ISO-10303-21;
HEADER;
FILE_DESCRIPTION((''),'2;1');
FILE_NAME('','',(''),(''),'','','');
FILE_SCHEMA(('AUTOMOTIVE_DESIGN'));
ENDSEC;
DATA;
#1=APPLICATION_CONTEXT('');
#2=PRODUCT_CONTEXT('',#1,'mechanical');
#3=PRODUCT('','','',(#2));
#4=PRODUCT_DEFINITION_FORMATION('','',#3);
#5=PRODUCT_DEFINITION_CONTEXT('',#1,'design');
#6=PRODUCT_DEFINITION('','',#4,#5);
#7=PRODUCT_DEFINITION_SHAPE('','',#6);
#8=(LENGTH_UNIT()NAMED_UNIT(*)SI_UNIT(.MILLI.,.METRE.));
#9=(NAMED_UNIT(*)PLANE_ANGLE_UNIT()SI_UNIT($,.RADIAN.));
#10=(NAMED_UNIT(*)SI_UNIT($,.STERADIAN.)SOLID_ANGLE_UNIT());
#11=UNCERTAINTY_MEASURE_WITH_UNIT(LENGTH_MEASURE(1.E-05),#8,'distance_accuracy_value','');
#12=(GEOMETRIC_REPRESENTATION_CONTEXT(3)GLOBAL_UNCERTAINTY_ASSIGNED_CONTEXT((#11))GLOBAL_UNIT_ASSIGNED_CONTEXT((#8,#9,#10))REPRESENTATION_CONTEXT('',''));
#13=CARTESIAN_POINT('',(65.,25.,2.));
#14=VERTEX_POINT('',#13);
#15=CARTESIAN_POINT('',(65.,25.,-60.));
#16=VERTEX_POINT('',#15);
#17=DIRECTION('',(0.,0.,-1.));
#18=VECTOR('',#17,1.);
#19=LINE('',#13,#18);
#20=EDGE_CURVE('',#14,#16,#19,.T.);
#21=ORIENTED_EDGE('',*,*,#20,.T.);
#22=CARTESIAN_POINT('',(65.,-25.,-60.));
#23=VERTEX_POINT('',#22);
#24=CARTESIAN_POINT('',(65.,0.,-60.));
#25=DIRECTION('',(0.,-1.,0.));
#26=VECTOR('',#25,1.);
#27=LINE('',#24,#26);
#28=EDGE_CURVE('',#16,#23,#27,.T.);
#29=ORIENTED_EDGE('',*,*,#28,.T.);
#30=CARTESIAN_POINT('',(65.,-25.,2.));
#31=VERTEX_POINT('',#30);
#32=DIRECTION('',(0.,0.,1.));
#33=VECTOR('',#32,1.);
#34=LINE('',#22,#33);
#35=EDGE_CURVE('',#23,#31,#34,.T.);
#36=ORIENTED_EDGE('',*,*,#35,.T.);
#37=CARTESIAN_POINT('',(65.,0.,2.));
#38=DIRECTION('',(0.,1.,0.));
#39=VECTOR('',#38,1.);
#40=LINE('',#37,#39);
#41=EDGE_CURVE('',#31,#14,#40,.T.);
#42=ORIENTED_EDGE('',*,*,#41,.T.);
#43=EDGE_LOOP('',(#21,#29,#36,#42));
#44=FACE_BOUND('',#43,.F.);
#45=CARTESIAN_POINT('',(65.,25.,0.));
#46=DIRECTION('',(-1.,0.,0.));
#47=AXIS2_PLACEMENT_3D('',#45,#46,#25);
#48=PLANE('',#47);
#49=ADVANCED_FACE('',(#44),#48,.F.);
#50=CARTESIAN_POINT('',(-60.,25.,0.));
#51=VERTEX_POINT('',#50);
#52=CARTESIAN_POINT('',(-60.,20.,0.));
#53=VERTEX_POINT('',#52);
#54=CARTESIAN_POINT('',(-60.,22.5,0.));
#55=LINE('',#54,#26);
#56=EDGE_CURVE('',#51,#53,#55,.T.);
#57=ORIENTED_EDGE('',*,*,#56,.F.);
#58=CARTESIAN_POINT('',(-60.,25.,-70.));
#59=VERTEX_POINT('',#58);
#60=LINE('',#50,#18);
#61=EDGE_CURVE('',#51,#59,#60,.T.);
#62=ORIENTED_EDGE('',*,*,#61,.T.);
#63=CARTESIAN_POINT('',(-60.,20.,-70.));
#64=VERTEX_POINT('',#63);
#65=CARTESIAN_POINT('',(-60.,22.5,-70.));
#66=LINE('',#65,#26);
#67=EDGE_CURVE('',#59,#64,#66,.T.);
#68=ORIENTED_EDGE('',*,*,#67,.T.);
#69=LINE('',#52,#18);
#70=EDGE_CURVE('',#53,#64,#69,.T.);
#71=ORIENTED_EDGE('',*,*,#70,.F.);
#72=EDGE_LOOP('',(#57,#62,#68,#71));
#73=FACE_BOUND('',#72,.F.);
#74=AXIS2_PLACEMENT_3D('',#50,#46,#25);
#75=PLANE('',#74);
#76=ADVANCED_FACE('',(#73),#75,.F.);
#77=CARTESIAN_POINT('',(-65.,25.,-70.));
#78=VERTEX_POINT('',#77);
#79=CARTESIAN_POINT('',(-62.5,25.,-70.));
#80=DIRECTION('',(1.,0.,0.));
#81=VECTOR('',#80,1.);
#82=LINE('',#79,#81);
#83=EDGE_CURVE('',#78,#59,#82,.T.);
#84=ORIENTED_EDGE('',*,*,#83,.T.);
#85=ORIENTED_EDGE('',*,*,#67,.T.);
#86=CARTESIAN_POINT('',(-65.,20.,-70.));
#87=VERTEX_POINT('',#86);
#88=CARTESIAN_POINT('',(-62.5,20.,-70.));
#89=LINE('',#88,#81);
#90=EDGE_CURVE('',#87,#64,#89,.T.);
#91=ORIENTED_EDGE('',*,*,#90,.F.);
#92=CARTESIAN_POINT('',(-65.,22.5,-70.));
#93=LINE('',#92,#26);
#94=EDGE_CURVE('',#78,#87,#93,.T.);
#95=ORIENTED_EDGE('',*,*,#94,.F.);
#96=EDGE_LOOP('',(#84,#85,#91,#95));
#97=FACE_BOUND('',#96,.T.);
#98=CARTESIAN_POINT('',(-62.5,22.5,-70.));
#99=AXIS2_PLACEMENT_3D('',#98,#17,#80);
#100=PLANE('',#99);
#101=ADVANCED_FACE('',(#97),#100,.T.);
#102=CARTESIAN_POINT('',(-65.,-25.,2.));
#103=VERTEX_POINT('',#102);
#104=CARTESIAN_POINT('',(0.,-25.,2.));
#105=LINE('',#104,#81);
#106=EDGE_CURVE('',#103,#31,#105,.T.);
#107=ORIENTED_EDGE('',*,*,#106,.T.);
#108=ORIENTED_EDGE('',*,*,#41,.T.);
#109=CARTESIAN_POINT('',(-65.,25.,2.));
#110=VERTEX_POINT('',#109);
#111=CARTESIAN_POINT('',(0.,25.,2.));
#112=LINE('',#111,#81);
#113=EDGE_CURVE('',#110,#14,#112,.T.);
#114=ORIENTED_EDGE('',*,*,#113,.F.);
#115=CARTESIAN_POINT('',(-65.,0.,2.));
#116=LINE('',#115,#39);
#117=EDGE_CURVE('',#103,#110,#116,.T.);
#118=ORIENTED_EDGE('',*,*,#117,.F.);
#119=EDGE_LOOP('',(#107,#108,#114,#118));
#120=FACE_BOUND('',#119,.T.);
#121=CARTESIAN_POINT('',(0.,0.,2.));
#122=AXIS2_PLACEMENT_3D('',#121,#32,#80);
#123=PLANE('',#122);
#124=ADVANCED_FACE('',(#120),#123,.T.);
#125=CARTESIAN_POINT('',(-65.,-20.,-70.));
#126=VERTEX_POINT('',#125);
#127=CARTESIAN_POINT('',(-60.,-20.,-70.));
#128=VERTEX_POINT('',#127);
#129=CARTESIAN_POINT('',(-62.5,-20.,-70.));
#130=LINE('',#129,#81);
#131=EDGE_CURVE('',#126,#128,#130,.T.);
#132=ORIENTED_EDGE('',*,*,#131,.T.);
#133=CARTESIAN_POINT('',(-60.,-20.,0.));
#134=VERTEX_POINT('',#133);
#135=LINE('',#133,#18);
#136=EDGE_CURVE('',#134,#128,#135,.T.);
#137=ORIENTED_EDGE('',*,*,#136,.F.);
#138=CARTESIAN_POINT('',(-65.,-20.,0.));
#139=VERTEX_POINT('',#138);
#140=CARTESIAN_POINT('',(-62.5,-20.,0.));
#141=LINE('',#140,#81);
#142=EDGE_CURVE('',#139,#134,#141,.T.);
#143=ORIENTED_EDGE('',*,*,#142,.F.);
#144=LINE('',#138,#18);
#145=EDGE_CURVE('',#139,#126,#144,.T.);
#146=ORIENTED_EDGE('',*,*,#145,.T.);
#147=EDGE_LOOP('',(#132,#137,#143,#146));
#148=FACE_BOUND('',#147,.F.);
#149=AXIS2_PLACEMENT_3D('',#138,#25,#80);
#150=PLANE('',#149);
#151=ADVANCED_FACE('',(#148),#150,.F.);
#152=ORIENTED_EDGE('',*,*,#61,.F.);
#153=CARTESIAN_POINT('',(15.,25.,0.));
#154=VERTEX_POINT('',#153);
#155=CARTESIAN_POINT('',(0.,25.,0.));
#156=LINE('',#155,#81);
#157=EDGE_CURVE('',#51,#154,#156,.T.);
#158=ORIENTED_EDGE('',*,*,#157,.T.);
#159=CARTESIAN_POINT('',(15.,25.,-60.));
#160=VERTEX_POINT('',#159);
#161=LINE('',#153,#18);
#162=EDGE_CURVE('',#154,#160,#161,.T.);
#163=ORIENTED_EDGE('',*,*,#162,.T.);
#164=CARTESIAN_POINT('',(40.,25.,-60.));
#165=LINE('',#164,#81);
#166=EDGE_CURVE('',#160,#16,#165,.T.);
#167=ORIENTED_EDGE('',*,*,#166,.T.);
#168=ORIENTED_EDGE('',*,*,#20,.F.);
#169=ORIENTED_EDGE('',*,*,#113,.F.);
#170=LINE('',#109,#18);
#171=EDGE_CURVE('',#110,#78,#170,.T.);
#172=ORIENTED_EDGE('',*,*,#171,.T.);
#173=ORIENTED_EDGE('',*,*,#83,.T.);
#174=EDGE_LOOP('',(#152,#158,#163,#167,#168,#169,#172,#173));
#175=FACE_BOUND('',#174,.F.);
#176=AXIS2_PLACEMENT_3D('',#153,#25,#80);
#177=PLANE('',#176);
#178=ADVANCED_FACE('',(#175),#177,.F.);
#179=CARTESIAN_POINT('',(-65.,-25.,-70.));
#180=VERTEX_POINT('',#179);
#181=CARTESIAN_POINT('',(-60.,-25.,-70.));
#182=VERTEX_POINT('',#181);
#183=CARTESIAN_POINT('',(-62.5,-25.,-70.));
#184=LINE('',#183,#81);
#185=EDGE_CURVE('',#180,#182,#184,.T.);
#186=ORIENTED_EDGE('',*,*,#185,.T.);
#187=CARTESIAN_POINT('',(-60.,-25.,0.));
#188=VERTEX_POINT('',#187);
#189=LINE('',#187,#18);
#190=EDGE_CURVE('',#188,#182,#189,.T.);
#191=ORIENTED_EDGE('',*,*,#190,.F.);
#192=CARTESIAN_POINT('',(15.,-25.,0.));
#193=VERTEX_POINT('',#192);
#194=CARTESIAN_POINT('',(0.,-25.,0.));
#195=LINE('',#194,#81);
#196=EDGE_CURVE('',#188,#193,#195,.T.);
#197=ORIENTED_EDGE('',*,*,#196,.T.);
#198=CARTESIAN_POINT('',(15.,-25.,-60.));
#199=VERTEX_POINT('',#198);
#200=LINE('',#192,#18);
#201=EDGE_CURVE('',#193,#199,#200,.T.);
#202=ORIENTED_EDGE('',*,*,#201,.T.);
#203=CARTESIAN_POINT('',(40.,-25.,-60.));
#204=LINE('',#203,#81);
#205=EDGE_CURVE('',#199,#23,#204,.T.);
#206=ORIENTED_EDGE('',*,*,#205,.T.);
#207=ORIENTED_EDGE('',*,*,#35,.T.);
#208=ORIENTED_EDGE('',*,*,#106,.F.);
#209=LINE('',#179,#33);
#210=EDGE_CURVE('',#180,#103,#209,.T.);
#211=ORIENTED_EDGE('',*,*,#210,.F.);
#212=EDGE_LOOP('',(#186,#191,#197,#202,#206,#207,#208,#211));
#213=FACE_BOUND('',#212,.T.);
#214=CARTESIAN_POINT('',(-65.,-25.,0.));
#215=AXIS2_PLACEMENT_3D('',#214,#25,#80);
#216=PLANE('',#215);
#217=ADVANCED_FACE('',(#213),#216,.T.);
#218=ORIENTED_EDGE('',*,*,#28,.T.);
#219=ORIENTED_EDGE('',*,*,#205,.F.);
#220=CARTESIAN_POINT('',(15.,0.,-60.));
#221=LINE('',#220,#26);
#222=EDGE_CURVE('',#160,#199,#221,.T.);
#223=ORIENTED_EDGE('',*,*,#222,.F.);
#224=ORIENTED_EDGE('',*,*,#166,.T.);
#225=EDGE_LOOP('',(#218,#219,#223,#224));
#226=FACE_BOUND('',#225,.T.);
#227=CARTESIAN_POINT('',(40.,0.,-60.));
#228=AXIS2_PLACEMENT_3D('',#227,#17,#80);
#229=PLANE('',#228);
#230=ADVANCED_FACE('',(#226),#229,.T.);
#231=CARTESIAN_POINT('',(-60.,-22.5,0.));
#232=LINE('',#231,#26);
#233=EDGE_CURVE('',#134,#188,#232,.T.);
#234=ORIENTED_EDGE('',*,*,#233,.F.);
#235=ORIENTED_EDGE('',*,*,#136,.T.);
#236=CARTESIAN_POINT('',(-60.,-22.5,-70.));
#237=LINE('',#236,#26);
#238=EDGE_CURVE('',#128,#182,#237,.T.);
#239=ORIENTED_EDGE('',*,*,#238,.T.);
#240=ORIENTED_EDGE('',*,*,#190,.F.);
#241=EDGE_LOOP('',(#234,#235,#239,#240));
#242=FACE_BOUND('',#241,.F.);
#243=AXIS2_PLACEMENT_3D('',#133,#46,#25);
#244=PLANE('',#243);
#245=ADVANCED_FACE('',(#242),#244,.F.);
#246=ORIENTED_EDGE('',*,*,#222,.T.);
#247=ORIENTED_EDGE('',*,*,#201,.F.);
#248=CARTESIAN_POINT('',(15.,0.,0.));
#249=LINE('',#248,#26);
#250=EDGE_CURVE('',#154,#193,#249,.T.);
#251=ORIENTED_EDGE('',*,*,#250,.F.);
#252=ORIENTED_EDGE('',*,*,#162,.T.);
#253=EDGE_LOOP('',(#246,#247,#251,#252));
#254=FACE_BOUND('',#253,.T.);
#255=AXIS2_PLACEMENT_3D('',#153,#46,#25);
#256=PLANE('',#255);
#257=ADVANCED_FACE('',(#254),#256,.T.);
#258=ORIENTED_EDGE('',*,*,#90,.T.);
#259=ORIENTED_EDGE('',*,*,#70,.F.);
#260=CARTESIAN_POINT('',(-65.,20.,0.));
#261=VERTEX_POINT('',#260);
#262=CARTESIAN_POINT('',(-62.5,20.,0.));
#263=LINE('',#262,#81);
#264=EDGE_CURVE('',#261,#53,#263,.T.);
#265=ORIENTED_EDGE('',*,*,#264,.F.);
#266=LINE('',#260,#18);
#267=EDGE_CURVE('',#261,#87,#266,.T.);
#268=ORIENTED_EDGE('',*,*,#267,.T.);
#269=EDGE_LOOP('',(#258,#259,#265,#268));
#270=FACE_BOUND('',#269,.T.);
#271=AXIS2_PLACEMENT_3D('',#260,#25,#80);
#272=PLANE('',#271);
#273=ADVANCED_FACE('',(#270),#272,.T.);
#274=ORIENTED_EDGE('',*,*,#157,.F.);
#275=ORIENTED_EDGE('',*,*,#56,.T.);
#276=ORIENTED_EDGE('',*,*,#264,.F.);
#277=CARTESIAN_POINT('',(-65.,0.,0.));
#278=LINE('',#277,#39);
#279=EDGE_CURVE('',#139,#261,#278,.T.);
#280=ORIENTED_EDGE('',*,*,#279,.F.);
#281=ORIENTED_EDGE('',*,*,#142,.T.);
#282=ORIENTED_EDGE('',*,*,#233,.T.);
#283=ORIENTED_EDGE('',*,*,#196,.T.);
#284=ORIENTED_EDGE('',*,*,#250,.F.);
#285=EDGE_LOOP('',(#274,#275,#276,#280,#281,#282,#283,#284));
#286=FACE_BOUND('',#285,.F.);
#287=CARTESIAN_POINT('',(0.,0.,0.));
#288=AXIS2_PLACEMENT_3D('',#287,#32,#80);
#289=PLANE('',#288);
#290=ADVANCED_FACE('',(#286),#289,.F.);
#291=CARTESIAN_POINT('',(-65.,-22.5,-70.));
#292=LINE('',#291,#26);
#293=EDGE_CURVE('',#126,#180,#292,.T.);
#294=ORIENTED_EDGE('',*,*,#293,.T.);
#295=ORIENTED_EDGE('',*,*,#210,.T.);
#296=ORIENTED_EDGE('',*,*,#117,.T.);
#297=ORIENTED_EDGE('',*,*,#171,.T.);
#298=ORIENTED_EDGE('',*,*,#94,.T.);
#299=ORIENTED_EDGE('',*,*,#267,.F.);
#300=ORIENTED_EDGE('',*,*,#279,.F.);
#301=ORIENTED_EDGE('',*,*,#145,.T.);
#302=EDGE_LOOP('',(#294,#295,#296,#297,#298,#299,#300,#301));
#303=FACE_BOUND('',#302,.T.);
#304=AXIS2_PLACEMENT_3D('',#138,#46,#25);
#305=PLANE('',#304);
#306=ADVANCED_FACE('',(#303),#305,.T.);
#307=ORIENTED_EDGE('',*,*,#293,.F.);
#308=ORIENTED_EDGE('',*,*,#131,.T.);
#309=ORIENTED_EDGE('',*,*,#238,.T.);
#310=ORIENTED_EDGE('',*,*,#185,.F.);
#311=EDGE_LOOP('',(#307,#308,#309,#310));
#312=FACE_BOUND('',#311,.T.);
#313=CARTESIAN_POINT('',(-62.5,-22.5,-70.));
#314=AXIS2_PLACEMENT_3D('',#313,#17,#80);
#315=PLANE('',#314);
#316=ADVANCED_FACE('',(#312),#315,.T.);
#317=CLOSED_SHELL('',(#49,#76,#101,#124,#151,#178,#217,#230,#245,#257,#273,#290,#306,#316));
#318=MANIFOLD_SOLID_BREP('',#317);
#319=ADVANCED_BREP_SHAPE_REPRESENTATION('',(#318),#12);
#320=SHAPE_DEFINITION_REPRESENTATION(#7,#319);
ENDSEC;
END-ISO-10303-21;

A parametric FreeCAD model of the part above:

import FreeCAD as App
import Part
import Sketcher
from FreeCAD import Vector


def add_polygon(sketch, points):
    """Adds a closed chain of lines whose ends are joined by coincident constraints."""
    first, n = sketch.GeometryCount, len(points)
    for a, b in zip(points, points[1:] + points[:1]):
        sketch.addGeometry(Part.LineSegment(App.Vector(*a, 0), App.Vector(*b, 0)), False)
    for i in range(n):
        sketch.addConstraint(Sketcher.Constraint("Coincident", first + i, 2, first + (i + 1) % n, 1))

doc = App.newDocument("Part")
body = doc.addObject("PartDesign::Body", "Body")

# Sketch on XY plane
sketch1 = body.newObject("Sketcher::SketchObject", "Sketch")
sketch1.AttachmentSupport = (doc.getObject("XY_Plane"), [""])
sketch1.MapMode = "FlatFace"
add_polygon(sketch1, [(-65, 25), (-65, -25), (65, -25), (65, 25)])  # lines 0-3
sketch1.addConstraint(Sketcher.Constraint("Vertical", 0))
sketch1.addConstraint(Sketcher.Constraint("Horizontal", 1))
sketch1.addConstraint(Sketcher.Constraint("Vertical", 2))
sketch1.addConstraint(Sketcher.Constraint("Horizontal", 3))
sketch1.addConstraint(Sketcher.Constraint("Symmetric", 0, 2, 2, 2, -1, 1))
sketch1.addConstraint(Sketcher.Constraint("DistanceX", 1, 1, 1, 2, 130.0))
sketch1.addConstraint(Sketcher.Constraint("DistanceY", 0, 2, 0, 1, 50.0))
pad1 = body.newObject("PartDesign::Pad", "Pad")
pad1.Profile = sketch1
pad1.Length = 2

# Sketch on XY plane
sketch2 = body.newObject("Sketcher::SketchObject", "Sketch001")
sketch2.AttachmentSupport = (doc.getObject("XY_Plane"), [""])
sketch2.MapMode = "FlatFace"
add_polygon(sketch2, [(15, -25), (15, 25), (65, 25), (65, -25)])  # lines 0-3
sketch2.addConstraint(Sketcher.Constraint("Vertical", 0))
sketch2.addConstraint(Sketcher.Constraint("Horizontal", 1))
sketch2.addConstraint(Sketcher.Constraint("Vertical", 2))
sketch2.addConstraint(Sketcher.Constraint("Horizontal", 3))
sketch2.addConstraint(Sketcher.Constraint("Equal", 3, 0))
sketch2.addConstraint(Sketcher.Constraint("DistanceX", 1, 1, 1, 2, 50.0))
sketch2.addConstraint(Sketcher.Constraint("DistanceX", -1, 1, 0, 2, 15.0))
sketch2.addConstraint(Sketcher.Constraint("DistanceY", -1, 1, 0, 2, 25.0))
pad2 = body.newObject("PartDesign::Pad", "Pad001")
pad2.Profile = sketch2
pad2.Length = 60
pad2.Reversed = True

# Sketch on XY plane
sketch3 = body.newObject("Sketcher::SketchObject", "Sketch002")
sketch3.AttachmentSupport = (doc.getObject("XY_Plane"), [""])
sketch3.MapMode = "FlatFace"
add_polygon(sketch3, [(-65, -25), (-65, -20), (-60, -20), (-60, -25)])  # lines 0-3
add_polygon(sketch3, [(-65, 20), (-65, 25), (-60, 25), (-60, 20)])  # lines 4-7
sketch3.addConstraint(Sketcher.Constraint("Vertical", 0))
sketch3.addConstraint(Sketcher.Constraint("Horizontal", 1))
sketch3.addConstraint(Sketcher.Constraint("Vertical", 2))
sketch3.addConstraint(Sketcher.Constraint("Horizontal", 3))
sketch3.addConstraint(Sketcher.Constraint("Vertical", 4))
sketch3.addConstraint(Sketcher.Constraint("Horizontal", 5))
sketch3.addConstraint(Sketcher.Constraint("Vertical", 6))
sketch3.addConstraint(Sketcher.Constraint("Horizontal", 7))
sketch3.addConstraint(Sketcher.Constraint("Symmetric", 3, 2, 4, 2, -1))
sketch3.addConstraint(Sketcher.Constraint("Symmetric", 1, 2, 6, 2, -1))
sketch3.addConstraint(Sketcher.Constraint("Equal", 7, 0))
sketch3.addConstraint(Sketcher.Constraint("DistanceX", 1, 1, 1, 2, 5.0))
sketch3.addConstraint(Sketcher.Constraint("DistanceX", 0, 2, -1, 1, 65.0))
sketch3.addConstraint(Sketcher.Constraint("DistanceY", 0, 2, -1, 1, 20.0))
pad3 = body.newObject("PartDesign::Pad", "Pad002")
pad3.Profile = sketch3
pad3.Length = 70
pad3.Reversed = True

doc.recompute()
